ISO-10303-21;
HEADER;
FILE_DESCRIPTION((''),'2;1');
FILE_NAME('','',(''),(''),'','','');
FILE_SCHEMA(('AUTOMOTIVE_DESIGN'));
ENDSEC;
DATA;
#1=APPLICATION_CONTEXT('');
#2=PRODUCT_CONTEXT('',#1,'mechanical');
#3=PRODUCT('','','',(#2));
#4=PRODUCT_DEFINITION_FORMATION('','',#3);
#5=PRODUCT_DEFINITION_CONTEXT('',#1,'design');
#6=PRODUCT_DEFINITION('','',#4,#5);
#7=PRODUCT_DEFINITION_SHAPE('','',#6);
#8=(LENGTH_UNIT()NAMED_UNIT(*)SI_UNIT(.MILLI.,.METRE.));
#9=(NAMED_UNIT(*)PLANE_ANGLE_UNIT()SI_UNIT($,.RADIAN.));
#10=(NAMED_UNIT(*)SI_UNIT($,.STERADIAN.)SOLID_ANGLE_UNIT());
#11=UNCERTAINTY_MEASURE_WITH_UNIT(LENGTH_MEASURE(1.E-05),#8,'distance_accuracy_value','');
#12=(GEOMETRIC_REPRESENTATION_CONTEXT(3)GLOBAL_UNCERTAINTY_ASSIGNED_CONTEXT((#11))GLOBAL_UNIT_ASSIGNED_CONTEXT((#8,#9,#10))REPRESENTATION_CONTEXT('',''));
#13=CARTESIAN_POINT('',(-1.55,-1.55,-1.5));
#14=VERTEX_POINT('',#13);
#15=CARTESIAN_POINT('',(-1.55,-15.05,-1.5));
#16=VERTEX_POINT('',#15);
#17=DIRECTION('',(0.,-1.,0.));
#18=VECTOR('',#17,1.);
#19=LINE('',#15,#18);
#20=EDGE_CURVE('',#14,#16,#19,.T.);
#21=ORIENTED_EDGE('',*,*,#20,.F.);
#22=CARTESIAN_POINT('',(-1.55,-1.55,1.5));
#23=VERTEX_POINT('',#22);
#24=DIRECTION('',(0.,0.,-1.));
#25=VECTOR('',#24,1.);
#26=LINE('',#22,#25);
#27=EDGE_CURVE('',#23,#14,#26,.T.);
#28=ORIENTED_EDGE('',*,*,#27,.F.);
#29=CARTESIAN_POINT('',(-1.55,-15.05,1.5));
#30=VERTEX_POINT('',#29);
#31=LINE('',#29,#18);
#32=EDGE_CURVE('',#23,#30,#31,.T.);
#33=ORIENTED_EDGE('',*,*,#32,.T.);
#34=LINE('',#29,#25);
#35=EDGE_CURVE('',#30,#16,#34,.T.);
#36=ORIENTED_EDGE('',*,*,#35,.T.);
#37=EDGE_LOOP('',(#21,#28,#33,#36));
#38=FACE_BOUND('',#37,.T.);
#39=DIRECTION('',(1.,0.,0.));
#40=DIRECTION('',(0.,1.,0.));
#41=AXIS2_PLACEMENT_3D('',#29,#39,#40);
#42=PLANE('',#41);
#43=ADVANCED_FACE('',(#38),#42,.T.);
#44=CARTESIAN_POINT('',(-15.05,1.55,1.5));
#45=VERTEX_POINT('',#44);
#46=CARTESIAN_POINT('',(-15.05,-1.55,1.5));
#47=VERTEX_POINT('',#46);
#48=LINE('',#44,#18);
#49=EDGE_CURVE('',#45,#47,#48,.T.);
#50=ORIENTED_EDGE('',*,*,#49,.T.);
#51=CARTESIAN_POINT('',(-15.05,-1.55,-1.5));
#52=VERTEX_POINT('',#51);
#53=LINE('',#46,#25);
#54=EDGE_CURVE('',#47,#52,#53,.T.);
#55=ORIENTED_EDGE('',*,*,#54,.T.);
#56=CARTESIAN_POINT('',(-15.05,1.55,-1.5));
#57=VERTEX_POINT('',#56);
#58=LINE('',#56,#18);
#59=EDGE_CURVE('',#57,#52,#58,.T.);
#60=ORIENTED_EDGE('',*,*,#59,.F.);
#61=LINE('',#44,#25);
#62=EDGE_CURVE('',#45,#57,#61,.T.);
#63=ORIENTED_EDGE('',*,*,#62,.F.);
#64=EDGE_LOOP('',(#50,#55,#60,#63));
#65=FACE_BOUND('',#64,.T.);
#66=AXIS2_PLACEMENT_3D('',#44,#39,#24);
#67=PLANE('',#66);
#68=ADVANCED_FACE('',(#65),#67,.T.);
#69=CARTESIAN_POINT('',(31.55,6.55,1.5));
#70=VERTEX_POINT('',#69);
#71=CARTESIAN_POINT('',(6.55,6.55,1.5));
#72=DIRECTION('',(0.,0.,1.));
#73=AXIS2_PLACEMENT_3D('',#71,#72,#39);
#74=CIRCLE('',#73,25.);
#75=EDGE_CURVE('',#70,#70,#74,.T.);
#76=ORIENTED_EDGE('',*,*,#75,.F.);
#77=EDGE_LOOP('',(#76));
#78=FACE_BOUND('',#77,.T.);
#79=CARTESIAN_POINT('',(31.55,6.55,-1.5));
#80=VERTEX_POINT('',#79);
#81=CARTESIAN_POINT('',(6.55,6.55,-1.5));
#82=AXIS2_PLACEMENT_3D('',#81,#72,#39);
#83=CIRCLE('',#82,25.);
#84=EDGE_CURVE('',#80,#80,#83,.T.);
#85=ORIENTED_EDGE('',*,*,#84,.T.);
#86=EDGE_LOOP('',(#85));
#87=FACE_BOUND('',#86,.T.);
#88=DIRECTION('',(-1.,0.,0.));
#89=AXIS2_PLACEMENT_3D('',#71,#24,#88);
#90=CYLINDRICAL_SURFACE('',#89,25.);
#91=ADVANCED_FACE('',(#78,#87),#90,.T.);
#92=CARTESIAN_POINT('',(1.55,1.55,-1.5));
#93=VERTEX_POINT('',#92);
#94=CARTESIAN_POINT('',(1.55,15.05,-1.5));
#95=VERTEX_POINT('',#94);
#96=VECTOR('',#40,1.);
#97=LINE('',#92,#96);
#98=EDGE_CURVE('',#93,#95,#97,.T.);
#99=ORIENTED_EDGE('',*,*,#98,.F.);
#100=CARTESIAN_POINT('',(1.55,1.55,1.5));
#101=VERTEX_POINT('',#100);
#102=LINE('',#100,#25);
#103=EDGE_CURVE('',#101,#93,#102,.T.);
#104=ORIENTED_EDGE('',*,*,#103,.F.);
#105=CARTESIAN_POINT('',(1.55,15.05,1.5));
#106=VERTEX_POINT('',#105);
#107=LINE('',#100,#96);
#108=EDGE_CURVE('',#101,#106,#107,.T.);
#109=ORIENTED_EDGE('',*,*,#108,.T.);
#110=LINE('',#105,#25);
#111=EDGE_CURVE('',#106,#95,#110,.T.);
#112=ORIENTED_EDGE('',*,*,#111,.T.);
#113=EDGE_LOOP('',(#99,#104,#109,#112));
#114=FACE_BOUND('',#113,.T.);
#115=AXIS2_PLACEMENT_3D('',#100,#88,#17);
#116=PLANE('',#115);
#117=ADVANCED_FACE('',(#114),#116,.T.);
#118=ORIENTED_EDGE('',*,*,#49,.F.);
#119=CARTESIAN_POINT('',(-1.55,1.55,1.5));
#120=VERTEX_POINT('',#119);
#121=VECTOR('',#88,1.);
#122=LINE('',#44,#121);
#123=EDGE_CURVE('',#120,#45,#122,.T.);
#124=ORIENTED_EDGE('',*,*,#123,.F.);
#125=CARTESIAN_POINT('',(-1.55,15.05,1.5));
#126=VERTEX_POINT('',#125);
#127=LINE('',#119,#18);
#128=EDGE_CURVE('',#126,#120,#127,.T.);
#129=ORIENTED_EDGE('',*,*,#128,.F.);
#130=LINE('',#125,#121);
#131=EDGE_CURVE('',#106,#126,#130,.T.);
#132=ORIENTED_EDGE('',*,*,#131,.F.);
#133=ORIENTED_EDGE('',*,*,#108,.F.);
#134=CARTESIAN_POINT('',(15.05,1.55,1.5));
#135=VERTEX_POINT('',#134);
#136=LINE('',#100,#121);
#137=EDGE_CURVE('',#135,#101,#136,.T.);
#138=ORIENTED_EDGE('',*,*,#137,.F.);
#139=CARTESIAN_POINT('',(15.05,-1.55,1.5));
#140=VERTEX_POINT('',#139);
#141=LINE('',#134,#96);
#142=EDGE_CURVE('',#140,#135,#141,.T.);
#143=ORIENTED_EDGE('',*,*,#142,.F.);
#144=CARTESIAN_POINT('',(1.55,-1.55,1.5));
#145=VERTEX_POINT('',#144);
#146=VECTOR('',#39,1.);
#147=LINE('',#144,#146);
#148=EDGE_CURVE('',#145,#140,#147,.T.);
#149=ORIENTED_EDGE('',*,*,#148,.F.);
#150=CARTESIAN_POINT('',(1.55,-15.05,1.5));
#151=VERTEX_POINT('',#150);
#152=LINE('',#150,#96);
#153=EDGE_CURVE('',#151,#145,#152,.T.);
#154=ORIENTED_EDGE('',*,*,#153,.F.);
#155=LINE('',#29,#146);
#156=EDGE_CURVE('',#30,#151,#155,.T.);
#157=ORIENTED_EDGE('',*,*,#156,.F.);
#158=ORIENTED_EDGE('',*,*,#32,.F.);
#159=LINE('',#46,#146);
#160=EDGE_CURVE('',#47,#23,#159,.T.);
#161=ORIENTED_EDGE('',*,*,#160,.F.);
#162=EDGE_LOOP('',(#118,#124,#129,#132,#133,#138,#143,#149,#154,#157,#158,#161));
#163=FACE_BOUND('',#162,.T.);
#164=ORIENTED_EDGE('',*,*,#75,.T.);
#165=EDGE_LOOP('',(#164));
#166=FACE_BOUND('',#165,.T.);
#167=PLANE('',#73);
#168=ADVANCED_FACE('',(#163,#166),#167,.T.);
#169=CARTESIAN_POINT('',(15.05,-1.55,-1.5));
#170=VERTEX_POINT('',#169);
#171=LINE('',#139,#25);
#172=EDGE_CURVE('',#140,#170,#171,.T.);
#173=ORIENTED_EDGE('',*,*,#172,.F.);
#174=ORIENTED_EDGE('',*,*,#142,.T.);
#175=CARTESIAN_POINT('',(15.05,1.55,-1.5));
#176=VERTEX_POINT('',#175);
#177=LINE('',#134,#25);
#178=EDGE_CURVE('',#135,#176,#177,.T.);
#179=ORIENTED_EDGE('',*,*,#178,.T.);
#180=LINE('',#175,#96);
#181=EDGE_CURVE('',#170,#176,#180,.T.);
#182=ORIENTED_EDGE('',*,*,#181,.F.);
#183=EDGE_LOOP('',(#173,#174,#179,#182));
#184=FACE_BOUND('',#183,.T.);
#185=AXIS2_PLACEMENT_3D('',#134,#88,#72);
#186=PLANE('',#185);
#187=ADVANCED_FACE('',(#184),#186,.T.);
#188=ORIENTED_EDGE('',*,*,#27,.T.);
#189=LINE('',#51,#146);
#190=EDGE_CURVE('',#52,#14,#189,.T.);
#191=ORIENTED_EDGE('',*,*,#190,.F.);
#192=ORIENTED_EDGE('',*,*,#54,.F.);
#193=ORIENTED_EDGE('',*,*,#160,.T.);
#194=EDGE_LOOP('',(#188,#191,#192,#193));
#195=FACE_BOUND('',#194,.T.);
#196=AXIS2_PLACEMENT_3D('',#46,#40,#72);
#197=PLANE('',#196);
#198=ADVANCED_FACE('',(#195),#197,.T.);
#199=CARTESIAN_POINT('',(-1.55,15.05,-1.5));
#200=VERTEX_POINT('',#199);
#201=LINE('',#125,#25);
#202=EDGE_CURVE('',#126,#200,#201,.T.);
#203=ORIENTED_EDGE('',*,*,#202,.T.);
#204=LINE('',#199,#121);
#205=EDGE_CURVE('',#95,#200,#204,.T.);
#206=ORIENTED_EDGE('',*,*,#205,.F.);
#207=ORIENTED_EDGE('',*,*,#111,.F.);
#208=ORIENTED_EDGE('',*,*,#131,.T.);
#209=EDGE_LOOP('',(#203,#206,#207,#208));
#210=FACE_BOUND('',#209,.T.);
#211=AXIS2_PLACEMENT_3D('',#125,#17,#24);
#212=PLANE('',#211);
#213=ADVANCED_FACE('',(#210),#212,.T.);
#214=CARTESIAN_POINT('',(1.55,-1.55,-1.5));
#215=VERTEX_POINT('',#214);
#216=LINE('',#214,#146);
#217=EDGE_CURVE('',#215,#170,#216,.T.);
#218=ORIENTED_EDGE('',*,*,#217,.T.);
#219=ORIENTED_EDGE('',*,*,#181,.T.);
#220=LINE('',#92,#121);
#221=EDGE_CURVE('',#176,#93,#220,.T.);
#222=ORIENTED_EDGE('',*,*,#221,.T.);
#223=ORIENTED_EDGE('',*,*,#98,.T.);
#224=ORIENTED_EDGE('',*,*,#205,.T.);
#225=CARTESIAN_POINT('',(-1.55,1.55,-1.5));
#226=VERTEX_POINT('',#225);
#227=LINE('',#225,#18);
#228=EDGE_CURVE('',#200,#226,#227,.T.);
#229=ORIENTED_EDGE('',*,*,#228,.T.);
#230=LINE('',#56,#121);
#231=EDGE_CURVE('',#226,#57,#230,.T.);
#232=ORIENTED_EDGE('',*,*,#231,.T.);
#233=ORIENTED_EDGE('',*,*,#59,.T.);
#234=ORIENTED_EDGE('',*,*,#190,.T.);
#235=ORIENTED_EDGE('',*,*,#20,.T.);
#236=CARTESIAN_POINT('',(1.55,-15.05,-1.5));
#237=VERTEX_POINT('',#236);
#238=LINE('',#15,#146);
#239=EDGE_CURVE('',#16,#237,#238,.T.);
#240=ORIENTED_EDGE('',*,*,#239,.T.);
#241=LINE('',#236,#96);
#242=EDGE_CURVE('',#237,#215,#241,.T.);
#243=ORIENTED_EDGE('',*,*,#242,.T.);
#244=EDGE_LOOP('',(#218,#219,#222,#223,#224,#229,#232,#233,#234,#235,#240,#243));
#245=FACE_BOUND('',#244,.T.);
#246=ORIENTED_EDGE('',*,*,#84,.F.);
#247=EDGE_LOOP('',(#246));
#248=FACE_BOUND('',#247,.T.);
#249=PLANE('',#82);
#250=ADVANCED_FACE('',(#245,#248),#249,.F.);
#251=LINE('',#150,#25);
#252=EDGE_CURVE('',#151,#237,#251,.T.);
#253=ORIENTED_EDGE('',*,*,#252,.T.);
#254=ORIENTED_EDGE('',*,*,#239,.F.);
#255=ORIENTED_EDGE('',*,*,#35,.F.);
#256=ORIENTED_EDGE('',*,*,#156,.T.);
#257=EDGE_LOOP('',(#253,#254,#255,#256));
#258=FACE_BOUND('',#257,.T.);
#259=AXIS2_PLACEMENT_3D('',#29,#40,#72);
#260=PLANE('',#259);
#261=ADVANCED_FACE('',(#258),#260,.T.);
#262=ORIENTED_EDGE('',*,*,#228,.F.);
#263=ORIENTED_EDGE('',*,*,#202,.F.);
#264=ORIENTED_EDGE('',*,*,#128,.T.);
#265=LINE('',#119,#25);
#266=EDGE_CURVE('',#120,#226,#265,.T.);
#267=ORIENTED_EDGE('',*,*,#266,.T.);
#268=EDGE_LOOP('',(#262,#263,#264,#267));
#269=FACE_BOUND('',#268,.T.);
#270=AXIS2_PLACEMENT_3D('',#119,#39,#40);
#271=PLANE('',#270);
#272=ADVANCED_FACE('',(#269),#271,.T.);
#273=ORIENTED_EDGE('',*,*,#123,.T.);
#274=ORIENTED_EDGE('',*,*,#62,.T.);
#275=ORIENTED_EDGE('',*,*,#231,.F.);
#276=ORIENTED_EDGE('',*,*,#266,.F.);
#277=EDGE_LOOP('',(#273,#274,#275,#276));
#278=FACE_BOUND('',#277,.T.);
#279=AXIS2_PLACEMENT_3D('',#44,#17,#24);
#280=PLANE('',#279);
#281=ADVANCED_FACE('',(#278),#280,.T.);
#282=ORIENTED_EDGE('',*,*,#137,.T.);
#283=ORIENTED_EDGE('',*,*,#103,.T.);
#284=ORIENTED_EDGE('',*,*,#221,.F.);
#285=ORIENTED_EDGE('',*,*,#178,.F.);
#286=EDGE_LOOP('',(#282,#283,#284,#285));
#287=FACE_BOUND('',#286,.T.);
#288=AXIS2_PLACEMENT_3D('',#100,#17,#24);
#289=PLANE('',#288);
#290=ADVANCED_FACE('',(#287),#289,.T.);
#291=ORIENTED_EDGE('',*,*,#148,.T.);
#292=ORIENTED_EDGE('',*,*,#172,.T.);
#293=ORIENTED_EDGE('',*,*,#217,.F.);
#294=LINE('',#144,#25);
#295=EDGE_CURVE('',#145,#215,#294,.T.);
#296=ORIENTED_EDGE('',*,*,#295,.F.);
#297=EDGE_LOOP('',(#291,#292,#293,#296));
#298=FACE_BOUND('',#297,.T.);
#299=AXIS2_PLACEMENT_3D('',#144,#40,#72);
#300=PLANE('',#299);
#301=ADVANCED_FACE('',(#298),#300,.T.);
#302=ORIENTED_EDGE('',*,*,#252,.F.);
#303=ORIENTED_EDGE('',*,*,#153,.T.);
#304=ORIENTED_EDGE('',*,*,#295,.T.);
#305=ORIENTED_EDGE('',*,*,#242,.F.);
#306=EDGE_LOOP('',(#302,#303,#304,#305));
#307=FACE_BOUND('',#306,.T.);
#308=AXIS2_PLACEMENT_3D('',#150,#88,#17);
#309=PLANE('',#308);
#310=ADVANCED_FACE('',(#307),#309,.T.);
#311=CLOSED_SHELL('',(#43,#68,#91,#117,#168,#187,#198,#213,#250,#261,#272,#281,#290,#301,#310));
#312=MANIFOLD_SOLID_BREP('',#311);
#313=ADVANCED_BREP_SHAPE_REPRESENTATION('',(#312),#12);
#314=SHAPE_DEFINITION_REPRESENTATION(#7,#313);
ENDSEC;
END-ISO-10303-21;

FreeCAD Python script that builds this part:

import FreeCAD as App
import Part
import Sketcher

V = App.Vector
Q = App.Units.Quantity

doc = App.newDocument("Part")
params = doc.addObject("Spreadsheet::Sheet", "Params")
for row, (alias, value) in enumerate([
    ("sketch1_diameter", "50 mm"),
    ("sketch1_width", "13.5 mm"),
    ("sketch1_width2", "3.1 mm"),
    ("pad1_length", "3 mm"),
], start=1):
    params.set(f"A{row}", alias)
    params.set(f"B{row}", "=" + value)
    params.setAlias(f"B{row}", alias)

body = doc.addObject("PartDesign::Body", "Body")

# Sketch on XY plane
sketch1 = doc.addObject("Sketcher::SketchObject", "Sketch")
body.addObject(sketch1)
sketch1.AttachmentSupport = (doc.XY_Plane, [""])
sketch1.MapMode = "FlatFace"
sketch1.addGeometry([
    Part.Circle(V(6.5, 6.5, 0), V(0, 0, 1), 25),  # 0
    Part.LineSegment(V(1.6, 15.1, 0), V(1.6, 1.6, 0)),  # 1
    Part.LineSegment(V(1.6, 1.6, 0), V(15.1, 1.6, 0)),  # 2
    Part.LineSegment(V(15.1, 1.6, 0), V(15.1, -1.6, 0)),  # 3
    Part.LineSegment(V(15.1, -1.6, 0), V(1.6, -1.6, 0)),  # 4
    Part.LineSegment(V(1.6, -1.6, 0), V(1.6, -15.1, 0)),  # 5
    Part.LineSegment(V(1.6, -15.1, 0), V(-1.6, -15.1, 0)),  # 6
    Part.LineSegment(V(-1.6, -15.1, 0), V(-1.6, -1.6, 0)),  # 7
    Part.LineSegment(V(-1.6, -1.6, 0), V(-15.1, -1.6, 0)),  # 8
    Part.LineSegment(V(-15.1, -1.6, 0), V(-15.1, 1.6, 0)),  # 9
    Part.LineSegment(V(-15.1, 1.6, 0), V(-1.6, 1.6, 0)),  # 10
    Part.LineSegment(V(-1.6, 1.6, 0), V(-1.6, 15.1, 0)),  # 11
    Part.LineSegment(V(-1.6, 15.1, 0), V(1.6, 15.1, 0)),  # 12
], False)
sketch1.addConstraint([
    Sketcher.Constraint("Coincident", 1, 2, 2, 1),
    Sketcher.Constraint("Coincident", 2, 2, 3, 1),
    Sketcher.Constraint("Coincident", 3, 2, 4, 1),
    Sketcher.Constraint("Coincident", 4, 2, 5, 1),
    Sketcher.Constraint("Coincident", 5, 2, 6, 1),
    Sketcher.Constraint("Coincident", 6, 2, 7, 1),
    Sketcher.Constraint("Coincident", 7, 2, 8, 1),
    Sketcher.Constraint("Coincident", 8, 2, 9, 1),
    Sketcher.Constraint("Coincident", 9, 2, 10, 1),
    Sketcher.Constraint("Coincident", 10, 2, 11, 1),
    Sketcher.Constraint("Coincident", 11, 2, 12, 1),
    Sketcher.Constraint("Coincident", 12, 2, 1, 1),
    Sketcher.Constraint("Vertical", 1),
    Sketcher.Constraint("Horizontal", 2),
    Sketcher.Constraint("Vertical", 3),
    Sketcher.Constraint("Horizontal", 4),
    Sketcher.Constraint("Vertical", 5),
    Sketcher.Constraint("Horizontal", 6),
    Sketcher.Constraint("Vertical", 7),
    Sketcher.Constraint("Horizontal", 8),
    Sketcher.Constraint("Vertical", 9),
    Sketcher.Constraint("Horizontal", 10),
    Sketcher.Constraint("Vertical", 11),
    Sketcher.Constraint("Horizontal", 12),
    Sketcher.Constraint("Symmetric", 1, 2, 7, 2, -1, 1),
    Sketcher.Constraint("Symmetric", 3, 2, 9, 2, -1, 1),
    Sketcher.Constraint("Symmetric", 5, 2, 11, 2, -1, 1),
    Sketcher.Constraint("Symmetric", 4, 2, 7, 2, -2),
    Sketcher.Constraint("Equal", 10, 1),
    Sketcher.Constraint("Equal", 12, 3),
    Sketcher.Constraint("Diameter", 0, Q("50 mm")),
    Sketcher.Constraint("DistanceX", 2, 1, 2, 2, Q("13.5 mm")),
    Sketcher.Constraint("DistanceX", 6, 2, 6, 1, Q("3.1 mm")),
    Sketcher.Constraint("DistanceX", 1, 2, 0, 3, Q("5 mm")),
    Sketcher.Constraint("DistanceY", 1, 2, 0, 3, Q("5 mm")),
])
sketch1.setExpression("Constraints[30]", "Params.sketch1_diameter")
sketch1.setExpression("Constraints[31]", "Params.sketch1_width")
sketch1.setExpression("Constraints[32]", "Params.sketch1_width2")
pad1 = doc.addObject("PartDesign::Pad", "Pad")
body.addObject(pad1)
pad1.Profile = sketch1
pad1.setExpression("Length", "Params.pad1_length")
pad1.Midplane = True

doc.recompute()
